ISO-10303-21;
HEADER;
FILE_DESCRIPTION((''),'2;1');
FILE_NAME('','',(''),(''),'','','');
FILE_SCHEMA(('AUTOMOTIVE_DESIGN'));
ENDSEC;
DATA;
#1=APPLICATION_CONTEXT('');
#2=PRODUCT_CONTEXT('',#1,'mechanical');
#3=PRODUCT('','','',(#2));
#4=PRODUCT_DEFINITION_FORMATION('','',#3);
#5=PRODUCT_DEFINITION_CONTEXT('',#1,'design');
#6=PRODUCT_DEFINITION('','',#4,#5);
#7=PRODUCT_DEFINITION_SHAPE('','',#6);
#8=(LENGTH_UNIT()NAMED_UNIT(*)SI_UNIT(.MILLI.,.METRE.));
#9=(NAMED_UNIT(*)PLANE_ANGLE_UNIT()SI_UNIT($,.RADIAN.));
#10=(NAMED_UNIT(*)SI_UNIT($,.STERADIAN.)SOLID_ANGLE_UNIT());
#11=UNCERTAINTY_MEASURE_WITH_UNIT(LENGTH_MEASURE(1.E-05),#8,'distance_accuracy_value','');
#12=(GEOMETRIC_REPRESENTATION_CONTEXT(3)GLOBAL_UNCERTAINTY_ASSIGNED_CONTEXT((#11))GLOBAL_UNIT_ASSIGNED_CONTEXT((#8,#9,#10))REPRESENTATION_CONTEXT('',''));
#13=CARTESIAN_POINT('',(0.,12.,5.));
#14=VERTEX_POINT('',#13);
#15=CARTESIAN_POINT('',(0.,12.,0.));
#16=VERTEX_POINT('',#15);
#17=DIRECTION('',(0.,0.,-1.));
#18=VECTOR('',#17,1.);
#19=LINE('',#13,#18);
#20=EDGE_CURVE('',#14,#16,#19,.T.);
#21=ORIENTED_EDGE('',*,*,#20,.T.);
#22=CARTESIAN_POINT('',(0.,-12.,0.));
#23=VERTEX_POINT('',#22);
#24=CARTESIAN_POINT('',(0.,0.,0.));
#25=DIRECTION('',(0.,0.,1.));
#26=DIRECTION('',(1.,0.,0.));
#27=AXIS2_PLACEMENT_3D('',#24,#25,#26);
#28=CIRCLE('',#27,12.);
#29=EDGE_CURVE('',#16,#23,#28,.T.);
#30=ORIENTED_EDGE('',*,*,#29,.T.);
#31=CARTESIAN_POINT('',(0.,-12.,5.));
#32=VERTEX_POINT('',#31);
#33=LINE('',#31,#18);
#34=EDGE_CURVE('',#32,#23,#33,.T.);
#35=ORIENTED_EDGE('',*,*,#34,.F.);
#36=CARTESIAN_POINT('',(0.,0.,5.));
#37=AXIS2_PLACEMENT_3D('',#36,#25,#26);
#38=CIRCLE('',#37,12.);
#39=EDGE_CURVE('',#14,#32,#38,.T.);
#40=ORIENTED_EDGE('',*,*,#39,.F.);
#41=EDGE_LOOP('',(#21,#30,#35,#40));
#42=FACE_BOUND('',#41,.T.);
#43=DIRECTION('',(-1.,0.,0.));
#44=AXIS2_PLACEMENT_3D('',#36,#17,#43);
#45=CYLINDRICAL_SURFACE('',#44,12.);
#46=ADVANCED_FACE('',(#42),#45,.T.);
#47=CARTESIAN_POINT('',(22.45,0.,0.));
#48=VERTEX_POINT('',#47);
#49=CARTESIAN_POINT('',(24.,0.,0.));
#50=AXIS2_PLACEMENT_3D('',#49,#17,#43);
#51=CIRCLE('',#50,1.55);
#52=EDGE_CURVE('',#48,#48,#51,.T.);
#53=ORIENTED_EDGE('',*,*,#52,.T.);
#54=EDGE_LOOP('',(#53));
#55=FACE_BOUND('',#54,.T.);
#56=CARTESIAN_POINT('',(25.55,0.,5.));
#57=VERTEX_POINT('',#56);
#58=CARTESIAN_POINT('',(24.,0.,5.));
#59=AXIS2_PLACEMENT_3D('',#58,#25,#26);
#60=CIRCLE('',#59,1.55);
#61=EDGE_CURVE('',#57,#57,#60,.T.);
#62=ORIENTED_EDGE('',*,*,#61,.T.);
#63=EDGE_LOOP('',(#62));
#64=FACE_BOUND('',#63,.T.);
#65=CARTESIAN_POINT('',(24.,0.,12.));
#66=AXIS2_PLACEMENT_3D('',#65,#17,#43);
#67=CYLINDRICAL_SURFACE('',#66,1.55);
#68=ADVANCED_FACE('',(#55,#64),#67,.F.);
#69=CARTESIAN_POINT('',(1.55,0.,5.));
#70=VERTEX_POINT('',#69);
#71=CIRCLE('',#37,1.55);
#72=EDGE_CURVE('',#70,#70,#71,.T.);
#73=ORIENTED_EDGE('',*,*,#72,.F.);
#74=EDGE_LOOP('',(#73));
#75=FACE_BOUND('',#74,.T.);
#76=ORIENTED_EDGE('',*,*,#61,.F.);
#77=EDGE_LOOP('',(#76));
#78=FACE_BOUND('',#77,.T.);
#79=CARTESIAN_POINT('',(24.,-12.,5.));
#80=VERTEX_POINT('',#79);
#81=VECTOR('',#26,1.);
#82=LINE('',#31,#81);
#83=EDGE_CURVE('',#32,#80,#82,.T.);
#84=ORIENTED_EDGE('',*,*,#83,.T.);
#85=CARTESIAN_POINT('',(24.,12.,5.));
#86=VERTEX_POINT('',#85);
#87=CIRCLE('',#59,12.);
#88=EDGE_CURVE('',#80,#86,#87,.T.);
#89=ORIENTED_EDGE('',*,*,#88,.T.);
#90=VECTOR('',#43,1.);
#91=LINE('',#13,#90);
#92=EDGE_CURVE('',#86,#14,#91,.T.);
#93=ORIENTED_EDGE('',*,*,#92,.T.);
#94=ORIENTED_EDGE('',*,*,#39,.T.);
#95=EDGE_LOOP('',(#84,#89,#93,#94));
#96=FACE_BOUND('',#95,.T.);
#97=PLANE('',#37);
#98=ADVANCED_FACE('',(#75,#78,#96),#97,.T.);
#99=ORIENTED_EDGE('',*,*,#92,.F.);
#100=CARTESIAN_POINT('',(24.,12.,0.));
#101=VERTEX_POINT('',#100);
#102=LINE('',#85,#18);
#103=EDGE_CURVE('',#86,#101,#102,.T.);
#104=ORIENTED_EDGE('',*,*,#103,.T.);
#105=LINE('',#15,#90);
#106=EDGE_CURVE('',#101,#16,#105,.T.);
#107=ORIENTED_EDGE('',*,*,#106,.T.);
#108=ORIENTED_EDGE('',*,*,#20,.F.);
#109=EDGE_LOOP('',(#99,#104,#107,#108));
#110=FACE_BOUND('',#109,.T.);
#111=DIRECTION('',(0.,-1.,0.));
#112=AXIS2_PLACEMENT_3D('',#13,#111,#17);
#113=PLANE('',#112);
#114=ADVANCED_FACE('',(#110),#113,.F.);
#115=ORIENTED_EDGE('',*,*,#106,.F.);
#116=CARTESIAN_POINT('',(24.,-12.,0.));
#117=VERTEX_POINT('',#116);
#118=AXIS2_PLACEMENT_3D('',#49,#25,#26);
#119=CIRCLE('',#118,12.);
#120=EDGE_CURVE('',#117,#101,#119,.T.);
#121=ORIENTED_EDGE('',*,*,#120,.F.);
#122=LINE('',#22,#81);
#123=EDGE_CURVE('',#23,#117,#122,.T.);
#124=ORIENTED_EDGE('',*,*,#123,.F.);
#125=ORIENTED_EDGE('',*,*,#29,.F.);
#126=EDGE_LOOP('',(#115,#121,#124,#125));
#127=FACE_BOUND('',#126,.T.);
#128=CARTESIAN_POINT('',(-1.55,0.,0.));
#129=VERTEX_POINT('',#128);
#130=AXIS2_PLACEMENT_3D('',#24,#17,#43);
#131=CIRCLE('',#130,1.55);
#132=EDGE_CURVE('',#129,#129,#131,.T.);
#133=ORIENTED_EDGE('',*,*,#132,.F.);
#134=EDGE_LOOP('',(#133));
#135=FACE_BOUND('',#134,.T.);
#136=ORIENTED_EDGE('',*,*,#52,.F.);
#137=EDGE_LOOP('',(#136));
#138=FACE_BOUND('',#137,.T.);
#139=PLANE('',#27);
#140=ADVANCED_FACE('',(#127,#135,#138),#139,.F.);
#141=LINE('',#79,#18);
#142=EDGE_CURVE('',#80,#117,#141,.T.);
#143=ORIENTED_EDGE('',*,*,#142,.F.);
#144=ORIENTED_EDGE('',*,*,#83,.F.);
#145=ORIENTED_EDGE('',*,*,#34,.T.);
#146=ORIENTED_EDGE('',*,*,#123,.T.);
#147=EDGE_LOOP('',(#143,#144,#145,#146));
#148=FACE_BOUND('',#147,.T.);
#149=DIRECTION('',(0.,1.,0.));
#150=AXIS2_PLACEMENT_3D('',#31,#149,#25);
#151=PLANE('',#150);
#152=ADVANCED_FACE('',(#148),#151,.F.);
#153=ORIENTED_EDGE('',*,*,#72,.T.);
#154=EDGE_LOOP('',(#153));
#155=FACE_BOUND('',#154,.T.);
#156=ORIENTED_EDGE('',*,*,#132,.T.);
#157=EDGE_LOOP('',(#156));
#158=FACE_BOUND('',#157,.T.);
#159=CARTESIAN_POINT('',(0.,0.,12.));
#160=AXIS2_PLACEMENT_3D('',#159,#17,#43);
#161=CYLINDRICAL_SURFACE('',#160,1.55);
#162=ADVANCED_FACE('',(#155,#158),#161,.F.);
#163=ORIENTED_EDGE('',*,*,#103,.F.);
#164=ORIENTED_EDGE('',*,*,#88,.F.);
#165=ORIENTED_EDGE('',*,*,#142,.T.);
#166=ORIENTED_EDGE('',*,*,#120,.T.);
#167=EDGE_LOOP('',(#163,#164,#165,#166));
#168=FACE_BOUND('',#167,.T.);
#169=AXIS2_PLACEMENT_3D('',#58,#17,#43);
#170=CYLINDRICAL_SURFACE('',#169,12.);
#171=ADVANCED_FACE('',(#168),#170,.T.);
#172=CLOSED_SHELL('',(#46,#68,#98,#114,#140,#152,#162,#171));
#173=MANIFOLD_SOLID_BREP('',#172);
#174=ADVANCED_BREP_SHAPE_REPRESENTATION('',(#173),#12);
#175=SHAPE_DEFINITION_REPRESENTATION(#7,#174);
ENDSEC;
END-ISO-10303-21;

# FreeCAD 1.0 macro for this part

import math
import FreeCAD as App
import Part
import Sketcher

doc = App.newDocument("Part")
body = doc.addObject("PartDesign::Body", "Body")

sketch1 = doc.addObject("Sketcher::SketchObject", "Sketch")
body.addObject(sketch1)
sketch1.AttachmentSupport = (doc.XY_Plane, [""])
sketch1.MapMode = "FlatFace"
sketch1.addGeometry(Part.LineSegment(App.Vector(24, 12, 0), App.Vector(0, 12, 0)), False)
sketch1.addGeometry(Part.ArcOfCircle(Part.Circle(App.Vector(0, 0, 0), App.Vector(0, 0, 1), 12), math.radians(90), math.radians(270)), False)
sketch1.addGeometry(Part.LineSegment(App.Vector(0, -12, 0), App.Vector(24, -12, 0)), False)
sketch1.addGeometry(Part.ArcOfCircle(Part.Circle(App.Vector(24, 0, 0), App.Vector(0, 0, 1), 12), math.radians(-90), math.radians(90)), False)
sketch1.addConstraint(Sketcher.Constraint("Tangent", 0, 2, 1, 1))
sketch1.addConstraint(Sketcher.Constraint("Tangent", 1, 2, 2, 1))
sketch1.addConstraint(Sketcher.Constraint("Tangent", 2, 2, 3, 1))
sketch1.addConstraint(Sketcher.Constraint("Tangent", 3, 2, 0, 1))
sketch1.addConstraint(Sketcher.Constraint("Horizontal", 0))
sketch1.addConstraint(Sketcher.Constraint("Horizontal", 2))
sketch1.addConstraint(Sketcher.Constraint("Coincident", 1, 3, -1, 1))
sketch1.addConstraint(Sketcher.Constraint("Radius", 1, 12.0))
sketch1.addConstraint(Sketcher.Constraint("DistanceX", 0, 2, 0, 1, 24.0))
pad1 = doc.addObject("PartDesign::Pad", "Pad")
body.addObject(pad1)
pad1.Profile = sketch1
pad1.Length = 5

sketch2 = doc.addObject("Sketcher::SketchObject", "Sketch001")
body.addObject(sketch2)
sketch2.AttachmentSupport = (doc.XY_Plane, [""])
sketch2.MapMode = "FlatFace"
sketch2.addGeometry(Part.Circle(App.Vector(0, 0, 0), App.Vector(0, 0, 1), 1.6), False)
sketch2.addGeometry(Part.Circle(App.Vector(24, 0, 0), App.Vector(0, 0, 1), 1.6), False)
sketch2.addConstraint(Sketcher.Constraint("Coincident", 0, 3, -1, 1))
sketch2.addConstraint(Sketcher.Constraint("Equal", 0, 1))
sketch2.addConstraint(Sketcher.Constraint("PointOnObject", 1, 3, -1))
sketch2.addConstraint(Sketcher.Constraint("Diameter", 0, 3.1))
sketch2.addConstraint(Sketcher.Constraint("DistanceX", -1, 1, 1, 3, 24.0))
pocket1 = doc.addObject("PartDesign::Pocket", "Pocket")
body.addObject(pocket1)
pocket1.Profile = sketch2
pocket1.Length = 12
pocket1.Reversed = True

doc.recompute()
